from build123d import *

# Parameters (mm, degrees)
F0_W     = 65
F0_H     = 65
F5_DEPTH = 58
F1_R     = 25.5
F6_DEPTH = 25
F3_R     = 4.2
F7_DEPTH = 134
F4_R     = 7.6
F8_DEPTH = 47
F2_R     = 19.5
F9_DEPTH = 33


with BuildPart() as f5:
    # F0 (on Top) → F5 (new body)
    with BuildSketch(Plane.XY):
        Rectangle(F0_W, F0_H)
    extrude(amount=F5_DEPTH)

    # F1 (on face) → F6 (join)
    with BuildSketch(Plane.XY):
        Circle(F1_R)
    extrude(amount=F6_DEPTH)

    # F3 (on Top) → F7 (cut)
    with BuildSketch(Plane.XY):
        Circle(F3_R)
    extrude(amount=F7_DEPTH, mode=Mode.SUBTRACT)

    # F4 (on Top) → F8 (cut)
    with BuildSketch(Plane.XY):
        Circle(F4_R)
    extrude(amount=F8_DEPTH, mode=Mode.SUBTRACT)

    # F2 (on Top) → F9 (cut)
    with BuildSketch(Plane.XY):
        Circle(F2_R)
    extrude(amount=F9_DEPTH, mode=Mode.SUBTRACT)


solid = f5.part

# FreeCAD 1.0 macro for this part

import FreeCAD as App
import Part
import Sketcher


def add_polygon(sketch, points):
    """Adds a closed chain of lines whose ends are joined by coincident constraints."""
    first, n = sketch.GeometryCount, len(points)
    for a, b in zip(points, points[1:] + points[:1]):
        sketch.addGeometry(Part.LineSegment(App.Vector(*a, 0), App.Vector(*b, 0)), False)
    for i in range(n):
        sketch.addConstraint(Sketcher.Constraint("Coincident", first + i, 2, first + (i + 1) % n, 1))

doc = App.newDocument("Part")
body = doc.addObject("PartDesign::Body", "Body")

# Sketch on XY plane
sketch1 = body.newObject("Sketcher::SketchObject", "Sketch")
sketch1.AttachmentSupport = (doc.getObject("XY_Plane"), [""])
sketch1.MapMode = "FlatFace"
add_polygon(sketch1, [(-32, 32), (-32, -32), (32, -32), (32, 32)])  # lines 0-3
sketch1.addConstraint(Sketcher.Constraint("Vertical", 0))
sketch1.addConstraint(Sketcher.Constraint("Horizontal", 1))
sketch1.addConstraint(Sketcher.Constraint("Vertical", 2))
sketch1.addConstraint(Sketcher.Constraint("Horizontal", 3))
sketch1.addConstraint(Sketcher.Constraint("Symmetric", 0, 2, 2, 2, -1, 1))
sketch1.addConstraint(Sketcher.Constraint("Equal", 3, 0))
sketch1.addConstraint(Sketcher.Constraint("DistanceX", 1, 1, 1, 2, 65.0))
pad1 = body.newObject("PartDesign::Pad", "Pad")
pad1.Profile = sketch1
pad1.Length = 58

# Sketch on XY plane
sketch2 = body.newObject("Sketcher::SketchObject", "Sketch001")
sketch2.AttachmentSupport = (doc.getObject("XY_Plane"), [""])
sketch2.MapMode = "FlatFace"
sketch2.addGeometry(Part.Circle(App.Vector(0, 0, 0), App.Vector(0, 0, 1), 26), False)
sketch2.addConstraint(Sketcher.Constraint("Coincident", 0, 3, -1, 1))
sketch2.addConstraint(Sketcher.Constraint("Diameter", 0, 51.0))
pad2 = body.newObject("PartDesign::Pad", "Pad001")
pad2.Profile = sketch2
pad2.Length = 25

# Sketch on XY plane
sketch3 = body.newObject("Sketcher::SketchObject", "Sketch002")
sketch3.AttachmentSupport = (doc.getObject("XY_Plane"), [""])
sketch3.MapMode = "FlatFace"
sketch3.addGeometry(Part.Circle(App.Vector(0, 0, 0), App.Vector(0, 0, 1), 4.2), False)
sketch3.addConstraint(Sketcher.Constraint("Coincident", 0, 3, -1, 1))
sketch3.addConstraint(Sketcher.Constraint("Diameter", 0, 8.4))
pocket1 = body.newObject("PartDesign::Pocket", "Pocket")
pocket1.Profile = sketch3
pocket1.Length = 134
pocket1.Reversed = True

# Sketch on XY plane
sketch4 = body.newObject("Sketcher::SketchObject", "Sketch003")
sketch4.AttachmentSupport = (doc.getObject("XY_Plane"), [""])
sketch4.MapMode = "FlatFace"
sketch4.addGeometry(Part.Circle(App.Vector(0, 0, 0), App.Vector(0, 0, 1), 8), False)
sketch4.addConstraint(Sketcher.Constraint("Coincident", 0, 3, -1, 1))
sketch4.addConstraint(Sketcher.Constraint("Diameter", 0, 15.2))
pocket2 = body.newObject("PartDesign::Pocket", "Pocket001")
pocket2.Profile = sketch4
pocket2.Length = 47
pocket2.Reversed = True

# Sketch on XY plane
sketch5 = body.newObject("Sketcher::SketchObject", "Sketch004")
sketch5.AttachmentSupport = (doc.getObject("XY_Plane"), [""])
sketch5.MapMode = "FlatFace"
sketch5.addGeometry(Part.Circle(App.Vector(0, 0, 0), App.Vector(0, 0, 1), 20), False)
sketch5.addConstraint(Sketcher.Constraint("Coincident", 0, 3, -1, 1))
sketch5.addConstraint(Sketcher.Constraint("Diameter", 0, 39.0))
pocket3 = body.newObject("PartDesign::Pocket", "Pocket002")
pocket3.Profile = sketch5
pocket3.Length = 33
pocket3.Reversed = True

doc.recompute()
